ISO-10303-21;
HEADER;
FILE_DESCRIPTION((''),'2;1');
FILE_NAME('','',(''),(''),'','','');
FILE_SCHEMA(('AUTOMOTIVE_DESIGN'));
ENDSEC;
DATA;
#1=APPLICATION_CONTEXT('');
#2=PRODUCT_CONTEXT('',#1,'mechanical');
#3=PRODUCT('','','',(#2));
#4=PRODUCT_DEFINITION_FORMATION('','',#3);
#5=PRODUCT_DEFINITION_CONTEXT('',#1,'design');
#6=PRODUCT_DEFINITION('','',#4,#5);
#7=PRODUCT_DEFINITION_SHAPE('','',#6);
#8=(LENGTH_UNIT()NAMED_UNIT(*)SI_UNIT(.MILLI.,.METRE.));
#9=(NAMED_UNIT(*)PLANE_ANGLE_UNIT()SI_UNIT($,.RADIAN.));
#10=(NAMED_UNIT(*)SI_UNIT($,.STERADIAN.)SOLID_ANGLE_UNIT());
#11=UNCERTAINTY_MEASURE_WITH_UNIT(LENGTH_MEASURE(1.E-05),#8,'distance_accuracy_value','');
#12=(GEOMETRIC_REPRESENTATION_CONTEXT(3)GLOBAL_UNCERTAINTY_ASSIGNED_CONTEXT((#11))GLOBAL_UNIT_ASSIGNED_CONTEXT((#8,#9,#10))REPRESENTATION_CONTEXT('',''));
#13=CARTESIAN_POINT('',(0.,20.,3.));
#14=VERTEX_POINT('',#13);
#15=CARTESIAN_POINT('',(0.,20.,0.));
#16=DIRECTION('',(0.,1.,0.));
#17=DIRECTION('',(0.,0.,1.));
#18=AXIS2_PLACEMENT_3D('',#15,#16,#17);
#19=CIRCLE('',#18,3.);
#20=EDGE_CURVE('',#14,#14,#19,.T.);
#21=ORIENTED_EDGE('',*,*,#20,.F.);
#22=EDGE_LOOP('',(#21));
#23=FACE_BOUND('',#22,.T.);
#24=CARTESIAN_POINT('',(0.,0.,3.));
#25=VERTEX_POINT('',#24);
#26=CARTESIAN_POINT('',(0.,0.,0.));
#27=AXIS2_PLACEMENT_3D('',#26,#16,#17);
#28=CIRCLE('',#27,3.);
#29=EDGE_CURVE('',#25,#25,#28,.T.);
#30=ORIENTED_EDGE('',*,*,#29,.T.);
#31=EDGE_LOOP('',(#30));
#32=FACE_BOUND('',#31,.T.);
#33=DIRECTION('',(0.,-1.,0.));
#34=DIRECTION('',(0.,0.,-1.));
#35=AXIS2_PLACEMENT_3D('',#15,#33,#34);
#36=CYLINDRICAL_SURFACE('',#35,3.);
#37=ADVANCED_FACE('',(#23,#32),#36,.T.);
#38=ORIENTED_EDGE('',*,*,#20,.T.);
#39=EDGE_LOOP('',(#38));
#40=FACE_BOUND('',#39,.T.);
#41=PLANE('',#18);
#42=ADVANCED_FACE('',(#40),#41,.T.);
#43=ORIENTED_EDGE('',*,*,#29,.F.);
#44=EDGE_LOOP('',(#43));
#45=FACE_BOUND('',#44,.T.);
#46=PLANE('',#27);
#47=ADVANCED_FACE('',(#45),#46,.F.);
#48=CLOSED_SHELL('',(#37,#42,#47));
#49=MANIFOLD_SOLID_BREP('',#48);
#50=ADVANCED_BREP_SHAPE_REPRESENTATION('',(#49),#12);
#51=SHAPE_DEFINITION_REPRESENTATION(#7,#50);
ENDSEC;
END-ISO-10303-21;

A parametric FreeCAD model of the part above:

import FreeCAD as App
import Part
import Sketcher

doc = App.newDocument("Part")
body = doc.addObject("PartDesign::Body", "Body")

# Sketch on XZ plane
sketch1 = body.newObject("Sketcher::SketchObject", "Sketch")
sketch1.AttachmentSupport = (doc.getObject("XZ_Plane"), [""])
sketch1.MapMode = "FlatFace"
sketch1.addGeometry(Part.Circle(App.Vector(0, 0, 0), App.Vector(0, 0, 1), 3), False)
sketch1.addConstraint([
    Sketcher.Constraint("Coincident", 0, 3, -1, 1),
    Sketcher.Constraint("Diameter", 0, 6.0),
])
pad1 = body.newObject("PartDesign::Pad", "Pad")
pad1.Profile = sketch1
pad1.Length = 20
pad1.Reversed = True

doc.recompute()
